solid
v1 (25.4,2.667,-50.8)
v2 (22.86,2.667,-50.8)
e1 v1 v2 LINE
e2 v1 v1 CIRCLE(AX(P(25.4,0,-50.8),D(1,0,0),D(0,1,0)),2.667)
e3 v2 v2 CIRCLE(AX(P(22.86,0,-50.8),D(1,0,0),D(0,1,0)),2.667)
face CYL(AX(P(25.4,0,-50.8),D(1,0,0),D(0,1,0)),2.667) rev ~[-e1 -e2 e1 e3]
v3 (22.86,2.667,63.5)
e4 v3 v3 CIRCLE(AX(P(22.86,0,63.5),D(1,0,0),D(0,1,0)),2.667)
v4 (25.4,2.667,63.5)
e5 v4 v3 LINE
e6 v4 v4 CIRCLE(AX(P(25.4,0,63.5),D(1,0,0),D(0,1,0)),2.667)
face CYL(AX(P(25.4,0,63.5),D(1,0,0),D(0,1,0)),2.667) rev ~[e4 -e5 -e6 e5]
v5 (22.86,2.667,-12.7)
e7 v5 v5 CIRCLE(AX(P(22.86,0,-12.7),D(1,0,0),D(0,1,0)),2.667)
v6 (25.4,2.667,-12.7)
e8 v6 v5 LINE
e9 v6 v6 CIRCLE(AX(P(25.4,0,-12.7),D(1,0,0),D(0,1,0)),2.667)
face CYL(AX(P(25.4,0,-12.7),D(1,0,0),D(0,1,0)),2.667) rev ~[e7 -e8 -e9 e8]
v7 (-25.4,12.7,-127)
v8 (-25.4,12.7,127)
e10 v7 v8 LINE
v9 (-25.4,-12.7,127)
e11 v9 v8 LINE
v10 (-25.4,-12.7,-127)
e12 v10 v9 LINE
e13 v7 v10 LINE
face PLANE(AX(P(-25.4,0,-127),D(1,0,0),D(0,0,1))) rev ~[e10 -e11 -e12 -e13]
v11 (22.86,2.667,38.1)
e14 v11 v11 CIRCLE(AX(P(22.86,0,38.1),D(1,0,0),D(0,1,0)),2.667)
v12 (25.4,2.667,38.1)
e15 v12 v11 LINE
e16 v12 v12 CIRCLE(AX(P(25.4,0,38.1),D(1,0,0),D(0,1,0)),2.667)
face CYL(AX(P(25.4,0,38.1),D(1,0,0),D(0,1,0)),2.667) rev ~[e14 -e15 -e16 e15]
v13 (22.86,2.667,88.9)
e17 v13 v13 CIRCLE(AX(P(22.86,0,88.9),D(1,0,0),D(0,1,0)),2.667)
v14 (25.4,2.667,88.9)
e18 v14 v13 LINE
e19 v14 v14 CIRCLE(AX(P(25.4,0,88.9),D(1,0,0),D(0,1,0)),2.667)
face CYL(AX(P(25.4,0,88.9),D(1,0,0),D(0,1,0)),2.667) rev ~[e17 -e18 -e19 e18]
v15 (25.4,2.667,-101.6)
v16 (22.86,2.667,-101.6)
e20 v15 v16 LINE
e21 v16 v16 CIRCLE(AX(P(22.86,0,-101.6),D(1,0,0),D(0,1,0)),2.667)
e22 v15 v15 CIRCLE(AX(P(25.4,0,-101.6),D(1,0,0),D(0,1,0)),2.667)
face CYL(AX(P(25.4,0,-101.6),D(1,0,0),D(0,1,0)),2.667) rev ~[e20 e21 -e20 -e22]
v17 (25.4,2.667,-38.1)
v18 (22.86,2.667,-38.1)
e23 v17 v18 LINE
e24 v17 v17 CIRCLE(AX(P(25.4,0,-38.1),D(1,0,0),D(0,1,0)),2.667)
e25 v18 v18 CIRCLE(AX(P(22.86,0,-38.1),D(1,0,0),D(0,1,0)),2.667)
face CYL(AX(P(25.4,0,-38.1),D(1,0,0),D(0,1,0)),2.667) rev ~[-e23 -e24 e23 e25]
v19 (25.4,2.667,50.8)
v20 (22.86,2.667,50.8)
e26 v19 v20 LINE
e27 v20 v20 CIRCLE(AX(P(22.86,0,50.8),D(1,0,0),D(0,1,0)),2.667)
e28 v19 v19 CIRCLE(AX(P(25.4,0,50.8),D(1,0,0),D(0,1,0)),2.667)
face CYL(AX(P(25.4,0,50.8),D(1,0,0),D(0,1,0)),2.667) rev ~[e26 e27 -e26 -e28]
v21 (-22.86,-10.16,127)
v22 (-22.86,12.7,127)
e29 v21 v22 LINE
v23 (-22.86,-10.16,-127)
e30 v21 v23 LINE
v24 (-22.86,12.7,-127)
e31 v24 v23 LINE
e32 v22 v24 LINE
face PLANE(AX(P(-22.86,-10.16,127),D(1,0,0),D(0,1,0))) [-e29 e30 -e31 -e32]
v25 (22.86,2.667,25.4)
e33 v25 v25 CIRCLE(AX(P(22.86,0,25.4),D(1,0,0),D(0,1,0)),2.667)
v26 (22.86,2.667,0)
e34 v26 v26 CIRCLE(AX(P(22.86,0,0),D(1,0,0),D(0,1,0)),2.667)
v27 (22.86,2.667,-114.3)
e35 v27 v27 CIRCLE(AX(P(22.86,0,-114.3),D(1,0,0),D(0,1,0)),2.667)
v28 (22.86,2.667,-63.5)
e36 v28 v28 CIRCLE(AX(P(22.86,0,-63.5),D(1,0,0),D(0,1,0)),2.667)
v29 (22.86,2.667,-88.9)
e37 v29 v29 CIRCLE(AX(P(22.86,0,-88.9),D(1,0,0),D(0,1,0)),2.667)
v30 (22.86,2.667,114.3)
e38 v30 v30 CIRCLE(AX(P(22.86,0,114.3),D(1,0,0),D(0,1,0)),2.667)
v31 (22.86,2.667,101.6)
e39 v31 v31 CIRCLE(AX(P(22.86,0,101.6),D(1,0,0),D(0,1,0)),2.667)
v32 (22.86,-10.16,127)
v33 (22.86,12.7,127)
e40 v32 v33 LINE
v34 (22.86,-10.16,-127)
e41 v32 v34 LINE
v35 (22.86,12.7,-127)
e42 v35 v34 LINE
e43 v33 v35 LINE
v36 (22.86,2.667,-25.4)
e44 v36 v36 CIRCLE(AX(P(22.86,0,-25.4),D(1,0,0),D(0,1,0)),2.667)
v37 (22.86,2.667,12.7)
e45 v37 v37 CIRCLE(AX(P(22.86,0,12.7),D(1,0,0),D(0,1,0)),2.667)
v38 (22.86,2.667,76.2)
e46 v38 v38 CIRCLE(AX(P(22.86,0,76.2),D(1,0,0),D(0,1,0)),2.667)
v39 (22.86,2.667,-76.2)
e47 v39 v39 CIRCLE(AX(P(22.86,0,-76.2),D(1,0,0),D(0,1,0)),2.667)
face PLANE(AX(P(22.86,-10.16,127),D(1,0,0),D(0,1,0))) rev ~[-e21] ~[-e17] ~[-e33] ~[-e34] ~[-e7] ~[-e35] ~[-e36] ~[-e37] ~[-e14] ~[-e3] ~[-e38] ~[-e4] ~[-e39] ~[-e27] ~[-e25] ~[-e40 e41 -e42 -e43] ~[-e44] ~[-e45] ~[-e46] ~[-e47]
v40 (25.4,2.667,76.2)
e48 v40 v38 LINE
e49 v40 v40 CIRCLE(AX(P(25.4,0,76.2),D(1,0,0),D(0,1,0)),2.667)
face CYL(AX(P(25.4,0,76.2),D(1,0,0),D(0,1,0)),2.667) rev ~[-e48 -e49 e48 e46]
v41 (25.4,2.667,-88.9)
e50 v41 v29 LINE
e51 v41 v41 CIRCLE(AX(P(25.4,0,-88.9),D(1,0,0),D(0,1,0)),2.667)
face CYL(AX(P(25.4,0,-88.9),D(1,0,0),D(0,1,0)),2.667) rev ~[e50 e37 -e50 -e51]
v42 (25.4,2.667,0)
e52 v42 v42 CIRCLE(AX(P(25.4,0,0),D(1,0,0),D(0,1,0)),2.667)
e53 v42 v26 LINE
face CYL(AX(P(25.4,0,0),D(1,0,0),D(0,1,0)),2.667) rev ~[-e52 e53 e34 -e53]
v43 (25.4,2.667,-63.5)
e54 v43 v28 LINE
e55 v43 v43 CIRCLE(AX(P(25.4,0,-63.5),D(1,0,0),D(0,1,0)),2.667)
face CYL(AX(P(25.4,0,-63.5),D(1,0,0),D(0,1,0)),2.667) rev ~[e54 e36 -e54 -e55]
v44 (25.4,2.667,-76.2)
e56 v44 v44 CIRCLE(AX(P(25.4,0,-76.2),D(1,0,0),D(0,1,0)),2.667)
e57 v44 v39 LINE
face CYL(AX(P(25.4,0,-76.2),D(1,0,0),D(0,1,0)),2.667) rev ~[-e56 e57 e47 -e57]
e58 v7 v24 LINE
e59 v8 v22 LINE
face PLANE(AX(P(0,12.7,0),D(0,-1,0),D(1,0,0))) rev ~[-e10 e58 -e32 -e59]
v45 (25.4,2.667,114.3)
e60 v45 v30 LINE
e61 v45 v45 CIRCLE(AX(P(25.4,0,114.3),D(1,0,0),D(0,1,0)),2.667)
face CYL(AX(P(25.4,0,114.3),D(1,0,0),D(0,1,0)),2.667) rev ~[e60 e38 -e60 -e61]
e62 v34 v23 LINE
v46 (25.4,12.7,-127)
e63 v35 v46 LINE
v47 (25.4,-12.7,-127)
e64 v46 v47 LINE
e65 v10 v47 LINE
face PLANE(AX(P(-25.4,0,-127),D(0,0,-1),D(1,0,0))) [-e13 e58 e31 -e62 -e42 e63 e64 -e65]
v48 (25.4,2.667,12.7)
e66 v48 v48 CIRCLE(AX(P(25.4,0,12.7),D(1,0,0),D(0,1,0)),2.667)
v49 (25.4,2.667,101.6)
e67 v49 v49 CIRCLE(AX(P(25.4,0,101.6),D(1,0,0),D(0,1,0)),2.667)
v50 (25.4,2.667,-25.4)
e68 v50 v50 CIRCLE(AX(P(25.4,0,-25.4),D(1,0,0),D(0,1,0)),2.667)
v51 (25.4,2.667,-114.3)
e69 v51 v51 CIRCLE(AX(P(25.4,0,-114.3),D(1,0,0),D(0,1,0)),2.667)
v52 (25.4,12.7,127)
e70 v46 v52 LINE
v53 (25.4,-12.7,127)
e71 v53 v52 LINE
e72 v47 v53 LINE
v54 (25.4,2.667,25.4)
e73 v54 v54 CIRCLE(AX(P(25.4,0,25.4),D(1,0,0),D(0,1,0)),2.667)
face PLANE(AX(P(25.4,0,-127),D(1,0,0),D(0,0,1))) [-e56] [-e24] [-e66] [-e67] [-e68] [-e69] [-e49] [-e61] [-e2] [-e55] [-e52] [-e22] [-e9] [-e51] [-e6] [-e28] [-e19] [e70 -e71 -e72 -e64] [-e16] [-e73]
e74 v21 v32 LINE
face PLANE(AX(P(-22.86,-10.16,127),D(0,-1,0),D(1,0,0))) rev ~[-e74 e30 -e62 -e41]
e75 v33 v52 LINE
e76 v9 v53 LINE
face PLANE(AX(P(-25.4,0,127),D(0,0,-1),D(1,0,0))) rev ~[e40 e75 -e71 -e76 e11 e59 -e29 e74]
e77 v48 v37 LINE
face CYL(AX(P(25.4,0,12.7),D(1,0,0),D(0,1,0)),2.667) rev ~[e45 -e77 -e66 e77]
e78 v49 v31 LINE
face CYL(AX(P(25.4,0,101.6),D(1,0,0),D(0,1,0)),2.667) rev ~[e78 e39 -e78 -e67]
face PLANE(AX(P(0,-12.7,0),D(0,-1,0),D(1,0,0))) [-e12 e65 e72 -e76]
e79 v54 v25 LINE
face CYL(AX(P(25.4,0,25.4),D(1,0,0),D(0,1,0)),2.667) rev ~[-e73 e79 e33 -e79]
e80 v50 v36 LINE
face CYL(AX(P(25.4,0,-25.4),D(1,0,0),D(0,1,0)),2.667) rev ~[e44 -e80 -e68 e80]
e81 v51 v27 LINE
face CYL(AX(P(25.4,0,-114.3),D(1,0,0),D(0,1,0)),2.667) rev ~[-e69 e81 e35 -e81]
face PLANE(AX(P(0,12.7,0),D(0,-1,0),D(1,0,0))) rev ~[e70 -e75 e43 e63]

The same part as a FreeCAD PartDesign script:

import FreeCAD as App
import Part
import Sketcher

V = App.Vector
Q = App.Units.Quantity

doc = App.newDocument("Part")
body = doc.addObject("PartDesign::Body", "Body")

sketch1 = body.newObject("Sketcher::SketchObject", "Sketch")
sketch1.AttachmentSupport = (doc.getObject("XZ_Plane"), [""])
sketch1.MapMode = "FlatFace"
sketch1.addGeometry([
    Part.LineSegment(V(-25, 127, 0), V(-25, -127, 0)),
    Part.LineSegment(V(-25, -127, 0), V(25, -127, 0)),
    Part.LineSegment(V(25, -127, 0), V(25, 127, 0)),
    Part.LineSegment(V(25, 127, 0), V(-25, 127, 0)),
], False)
sketch1.addConstraint([
    Sketcher.Constraint("Coincident", 0, 2, 1, 1),
    Sketcher.Constraint("Coincident", 1, 2, 2, 1),
    Sketcher.Constraint("Coincident", 2, 2, 3, 1),
    Sketcher.Constraint("Coincident", 3, 2, 0, 1),
    Sketcher.Constraint("Vertical", 0),
    Sketcher.Constraint("Horizontal", 1),
    Sketcher.Constraint("Vertical", 2),
    Sketcher.Constraint("Horizontal", 3),
    Sketcher.Constraint("Symmetric", 0, 2, 2, 2, -1, 1),
    Sketcher.Constraint("DistanceX", 1, 1, 1, 2, Q("2 in")),
    Sketcher.Constraint("DistanceY", 0, 2, 0, 1, Q("10 in")),
])
pad1 = body.newObject("PartDesign::Pad", "Pad")
pad1.Profile = sketch1
pad1.Length = Q("1 in")
pad1.Midplane = True

sketch2 = body.newObject("Sketcher::SketchObject", "Sketch001")
sketch2.AttachmentSupport = (doc.getObject("XY_Plane"), [""])
sketch2.MapMode = "FlatFace"
sketch2.AttachmentOffset = App.Placement(V(0, 0, 5 * 25.4), App.Rotation())
sketch2.addGeometry([
    Part.LineSegment(V(-23, 13, 0), V(-23, -10, 0)),
    Part.LineSegment(V(-23, -10, 0), V(23, -10, 0)),
    Part.LineSegment(V(23, -10, 0), V(23, 13, 0)),
    Part.LineSegment(V(23, 13, 0), V(-23, 13, 0)),
], False)
sketch2.addConstraint([
    Sketcher.Constraint("Coincident", 0, 2, 1, 1),
    Sketcher.Constraint("Coincident", 1, 2, 2, 1),
    Sketcher.Constraint("Coincident", 2, 2, 3, 1),
    Sketcher.Constraint("Coincident", 3, 2, 0, 1),
    Sketcher.Constraint("Vertical", 0),
    Sketcher.Constraint("Horizontal", 1),
    Sketcher.Constraint("Vertical", 2),
    Sketcher.Constraint("Horizontal", 3),
    Sketcher.Constraint("DistanceX", 1, 1, 1, 2, Q("1.8 in")),
    Sketcher.Constraint("DistanceY", 0, 2, 0, 1, Q("0.9 in")),
    Sketcher.Constraint("DistanceX", 0, 2, -1, 1, Q("0.9 in")),
    Sketcher.Constraint("DistanceY", 0, 2, -1, 1, Q("0.4 in")),
])
pocket1 = body.newObject("PartDesign::Pocket", "Pocket")
pocket1.Profile = sketch2
pocket1.Type = "ThroughAll"

sketch3 = body.newObject("Sketcher::SketchObject", "Sketch002")
sketch3.AttachmentSupport = (doc.getObject("YZ_Plane"), [""])
sketch3.MapMode = "FlatFace"
sketch3.AttachmentOffset = App.Placement(V(0, 0, 1 * 25.4), App.Rotation())
sketch3.addGeometry([
    Part.Circle(V(0, 101.6, 0), V(0, 0, 1), 2.7),
    Part.Circle(V(0, 38.1, 0), V(0, 0, 1), 2.7),
    Part.Circle(V(0, 50.8, 0), V(0, 0, 1), 2.7),
    Part.Circle(V(0, 63.5, 0), V(0, 0, 1), 2.7),
    Part.Circle(V(0, 76.2, 0), V(0, 0, 1), 2.7),
    Part.Circle(V(0, 114.3, 0), V(0, 0, 1), 2.7),
    Part.Circle(V(0, -63.5, 0), V(0, 0, 1), 2.7),
    Part.Circle(V(0, -88.9, 0), V(0, 0, 1), 2.7),
    Part.Circle(V(0, -76.2, 0), V(0, 0, 1), 2.7),
    Part.Circle(V(0, -114.3, 0), V(0, 0, 1), 2.7),
    Part.Circle(V(0, -101.6, 0), V(0, 0, 1), 2.7),
    Part.Circle(V(0, 88.9, 0), V(0, 0, 1), 2.7),
    Part.Circle(V(0, -50.8, 0), V(0, 0, 1), 2.7),
    Part.Circle(V(0, 25.4, 0), V(0, 0, 1), 2.7),
    Part.Circle(V(0, 12.7, 0), V(0, 0, 1), 2.7),
    Part.Circle(V(0, -12.7, 0), V(0, 0, 1), 2.7),
    Part.Circle(V(0, -25.4, 0), V(0, 0, 1), 2.7),
    Part.Circle(V(0, -38.1, 0), V(0, 0, 1), 2.7),
    Part.Circle(V(0, 0, 0), V(0, 0, 1), 2.7),
], False)
sketch3.addConstraint([
    Sketcher.Constraint("Coincident", 18, 3, -1, 1),
    Sketcher.Constraint("Equal", 0, 1),
    Sketcher.Constraint("Equal", 1, 2),
    Sketcher.Constraint("Equal", 2, 3),
    Sketcher.Constraint("Equal", 3, 4),
    Sketcher.Constraint("Equal", 4, 5),
    Sketcher.Constraint("Equal", 5, 6),
    Sketcher.Constraint("Equal", 6, 7),
    Sketcher.Constraint("Equal", 7, 8),
    Sketcher.Constraint("Equal", 8, 9),
    Sketcher.Constraint("Equal", 9, 10),
    Sketcher.Constraint("Equal", 10, 11),
    Sketcher.Constraint("Equal", 11, 12),
    Sketcher.Constraint("Equal", 12, 13),
    Sketcher.Constraint("Equal", 13, 14),
    Sketcher.Constraint("Equal", 14, 15),
    Sketcher.Constraint("Equal", 15, 16),
    Sketcher.Constraint("Equal", 16, 17),
    Sketcher.Constraint("Equal", 17, 18),
    Sketcher.Constraint("Symmetric", 3, 3, 6, 3, -1, 1),
    Sketcher.Constraint("Symmetric", 4, 3, 8, 3, -1, 1),
    Sketcher.Constraint("Symmetric", 5, 3, 9, 3, -1, 1),
    Sketcher.Constraint("Symmetric", 0, 3, 10, 3, -1, 1),
    Sketcher.Constraint("Symmetric", 7, 3, 11, 3, -1, 1),
    Sketcher.Constraint("Symmetric", 2, 3, 12, 3, -1, 1),
    Sketcher.Constraint("Symmetric", 14, 3, 15, 3, -1, 1),
    Sketcher.Constraint("Symmetric", 13, 3, 16, 3, -1, 1),
    Sketcher.Constraint("Symmetric", 1, 3, 17, 3, -1, 1),
    Sketcher.Constraint("PointOnObject", 0, 3, -2),
    Sketcher.Constraint("PointOnObject", 1, 3, -2),
    Sketcher.Constraint("PointOnObject", 2, 3, -2),
    Sketcher.Constraint("PointOnObject", 3, 3, -2),
    Sketcher.Constraint("PointOnObject", 4, 3, -2),
    Sketcher.Constraint("PointOnObject", 5, 3, -2),
    Sketcher.Constraint("PointOnObject", 7, 3, -2),
    Sketcher.Constraint("PointOnObject", 13, 3, -2),
    Sketcher.Constraint("PointOnObject", 14, 3, -2),
    Sketcher.Constraint("Diameter", 0, Q("0.21 in")),
    Sketcher.Constraint("DistanceY", -1, 1, 0, 3, Q("4 in")),
    Sketcher.Constraint("DistanceY", -1, 1, 2, 3, Q("2 in")),
    Sketcher.Constraint("DistanceY", -1, 1, 4, 3, Q("3 in")),
    Sketcher.Constraint("DistanceY", -1, 1, 13, 3, Q("1 in")),
    Sketcher.Constraint("DistanceY", 1, 3, 3, 3, Q("1 in")),
    Sketcher.Constraint("DistanceY", 3, 3, 5, 3, Q("2 in")),
    Sketcher.Constraint("DistanceY", 6, 3, 1, 3, Q("4 in")),
    Sketcher.Constraint("DistanceY", 7, 3, 6, 3, Q("1 in")),
    Sketcher.Constraint("DistanceY", 14, 3, 1, 3, Q("1 in")),
])
pocket2 = body.newObject("PartDesign::Pocket", "Pocket001")
pocket2.Profile = sketch3
pocket2.Length = Q("0.1 in")

doc.recompute()
